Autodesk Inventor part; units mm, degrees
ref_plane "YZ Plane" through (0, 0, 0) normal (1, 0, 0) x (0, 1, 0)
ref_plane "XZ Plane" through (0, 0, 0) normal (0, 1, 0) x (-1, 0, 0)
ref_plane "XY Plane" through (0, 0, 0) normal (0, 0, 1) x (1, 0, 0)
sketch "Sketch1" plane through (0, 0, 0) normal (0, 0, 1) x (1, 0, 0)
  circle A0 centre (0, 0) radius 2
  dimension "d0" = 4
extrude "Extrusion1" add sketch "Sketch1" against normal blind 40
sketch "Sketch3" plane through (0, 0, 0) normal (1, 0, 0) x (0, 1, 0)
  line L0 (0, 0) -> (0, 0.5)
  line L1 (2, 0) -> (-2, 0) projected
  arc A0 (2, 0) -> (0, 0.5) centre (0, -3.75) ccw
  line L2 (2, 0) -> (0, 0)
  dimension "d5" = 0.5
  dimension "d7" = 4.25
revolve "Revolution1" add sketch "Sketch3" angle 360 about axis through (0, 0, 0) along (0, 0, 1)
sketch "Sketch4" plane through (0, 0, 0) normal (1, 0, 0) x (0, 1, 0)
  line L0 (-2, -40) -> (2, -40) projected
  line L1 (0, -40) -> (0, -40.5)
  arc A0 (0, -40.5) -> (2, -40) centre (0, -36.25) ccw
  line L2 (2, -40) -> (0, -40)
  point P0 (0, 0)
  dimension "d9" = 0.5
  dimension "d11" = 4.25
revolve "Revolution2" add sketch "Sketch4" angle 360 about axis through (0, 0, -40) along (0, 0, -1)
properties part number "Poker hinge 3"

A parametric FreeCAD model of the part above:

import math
import FreeCAD as App
import Part
import Sketcher
Q = App.Units.Quantity

doc = App.newDocument("Part")
body = doc.addObject("PartDesign::Body", "Body")

# Sketch on XY plane
sketch1 = body.newObject("Sketcher::SketchObject", "Sketch")
sketch1.AttachmentSupport = (doc.getObject("XY_Plane"), [""])
sketch1.MapMode = "FlatFace"
sketch1.addGeometry(Part.Circle(App.Vector(0, 0, 0), App.Vector(0, 0, 1), 2), False)
sketch1.addConstraint(Sketcher.Constraint("Coincident", 0, 3, -1, 1))
sketch1.addConstraint(Sketcher.Constraint("Diameter", 0, Q("4 mm")))
pad1 = body.newObject("PartDesign::Pad", "Pad")
pad1.Profile = sketch1
pad1.Length = 40
pad1.Reversed = True

# Sketch on YZ plane
sketch2 = body.newObject("Sketcher::SketchObject", "Sketch001")
sketch2.AttachmentSupport = (doc.getObject("YZ_Plane"), [""])
sketch2.MapMode = "FlatFace"
sketch2.addGeometry(Part.LineSegment(App.Vector(0, 0.5, 0), App.Vector(0, 0, 0)), False)
sketch2.addGeometry(Part.LineSegment(App.Vector(0, 0, 0), App.Vector(2, 0, 0)), False)
sketch2.addGeometry(Part.ArcOfCircle(Part.Circle(App.Vector(0, -3.75, 0), App.Vector(0, 0, 1), 4.25), math.radians(61.927513), math.radians(90)), False)
sketch2.addConstraint(Sketcher.Constraint("Coincident", 0, 2, 1, 1))
sketch2.addConstraint(Sketcher.Constraint("Coincident", 1, 2, 2, 1))
sketch2.addConstraint(Sketcher.Constraint("Coincident", 2, 2, 0, 1))
sketch2.addConstraint(Sketcher.Constraint("Vertical", 0))
sketch2.addConstraint(Sketcher.Constraint("Horizontal", 1))
sketch2.addConstraint(Sketcher.Constraint("Coincident", 0, 2, -1, 1))
sketch2.addConstraint(Sketcher.Constraint("PointOnObject", 2, 3, -2))
sketch2.addConstraint(Sketcher.Constraint("Radius", 2, Q("4.25 mm")))
sketch2.addConstraint(Sketcher.Constraint("DistanceY", 0, 2, 0, 1, Q("0.5 mm")))
revolution = body.newObject("PartDesign::Revolution", "Revolution")
revolution.Profile = sketch2
revolution.ReferenceAxis = (sketch2, ["V_Axis"])
revolution.Angle = 360

# Sketch on YZ plane
sketch3 = body.newObject("Sketcher::SketchObject", "Sketch002")
sketch3.AttachmentSupport = (doc.getObject("YZ_Plane"), [""])
sketch3.MapMode = "FlatFace"
sketch3.addGeometry(Part.LineSegment(App.Vector(2, -40, 0), App.Vector(0, -40, 0)), False)
sketch3.addGeometry(Part.LineSegment(App.Vector(0, -40, 0), App.Vector(0, -40.5, 0)), False)
sketch3.addGeometry(Part.ArcOfCircle(Part.Circle(App.Vector(0, -36.25, 0), App.Vector(0, 0, 1), 4.25), math.radians(-90), math.radians(-61.927513)), False)
sketch3.addConstraint(Sketcher.Constraint("Coincident", 0, 2, 1, 1))
sketch3.addConstraint(Sketcher.Constraint("Coincident", 1, 2, 2, 1))
sketch3.addConstraint(Sketcher.Constraint("Coincident", 2, 2, 0, 1))
sketch3.addConstraint(Sketcher.Constraint("Horizontal", 0))
sketch3.addConstraint(Sketcher.Constraint("Vertical", 1))
sketch3.addConstraint(Sketcher.Constraint("PointOnObject", 2, 3, -2))
sketch3.addConstraint(Sketcher.Constraint("PointOnObject", 0, 2, -2))
sketch3.addConstraint(Sketcher.Constraint("Radius", 2, Q("4.25 mm")))
sketch3.addConstraint(Sketcher.Constraint("DistanceY", 1, 2, 1, 1, Q("0.5 mm")))
sketch3.addConstraint(Sketcher.Constraint("DistanceY", 0, 2, -1, 1, Q("40 mm")))
revolution2 = body.newObject("PartDesign::Revolution", "Revolution001")
revolution2.Profile = sketch3
revolution2.ReferenceAxis = (sketch3, ["V_Axis"])
revolution2.Angle = 360

doc.recompute()
